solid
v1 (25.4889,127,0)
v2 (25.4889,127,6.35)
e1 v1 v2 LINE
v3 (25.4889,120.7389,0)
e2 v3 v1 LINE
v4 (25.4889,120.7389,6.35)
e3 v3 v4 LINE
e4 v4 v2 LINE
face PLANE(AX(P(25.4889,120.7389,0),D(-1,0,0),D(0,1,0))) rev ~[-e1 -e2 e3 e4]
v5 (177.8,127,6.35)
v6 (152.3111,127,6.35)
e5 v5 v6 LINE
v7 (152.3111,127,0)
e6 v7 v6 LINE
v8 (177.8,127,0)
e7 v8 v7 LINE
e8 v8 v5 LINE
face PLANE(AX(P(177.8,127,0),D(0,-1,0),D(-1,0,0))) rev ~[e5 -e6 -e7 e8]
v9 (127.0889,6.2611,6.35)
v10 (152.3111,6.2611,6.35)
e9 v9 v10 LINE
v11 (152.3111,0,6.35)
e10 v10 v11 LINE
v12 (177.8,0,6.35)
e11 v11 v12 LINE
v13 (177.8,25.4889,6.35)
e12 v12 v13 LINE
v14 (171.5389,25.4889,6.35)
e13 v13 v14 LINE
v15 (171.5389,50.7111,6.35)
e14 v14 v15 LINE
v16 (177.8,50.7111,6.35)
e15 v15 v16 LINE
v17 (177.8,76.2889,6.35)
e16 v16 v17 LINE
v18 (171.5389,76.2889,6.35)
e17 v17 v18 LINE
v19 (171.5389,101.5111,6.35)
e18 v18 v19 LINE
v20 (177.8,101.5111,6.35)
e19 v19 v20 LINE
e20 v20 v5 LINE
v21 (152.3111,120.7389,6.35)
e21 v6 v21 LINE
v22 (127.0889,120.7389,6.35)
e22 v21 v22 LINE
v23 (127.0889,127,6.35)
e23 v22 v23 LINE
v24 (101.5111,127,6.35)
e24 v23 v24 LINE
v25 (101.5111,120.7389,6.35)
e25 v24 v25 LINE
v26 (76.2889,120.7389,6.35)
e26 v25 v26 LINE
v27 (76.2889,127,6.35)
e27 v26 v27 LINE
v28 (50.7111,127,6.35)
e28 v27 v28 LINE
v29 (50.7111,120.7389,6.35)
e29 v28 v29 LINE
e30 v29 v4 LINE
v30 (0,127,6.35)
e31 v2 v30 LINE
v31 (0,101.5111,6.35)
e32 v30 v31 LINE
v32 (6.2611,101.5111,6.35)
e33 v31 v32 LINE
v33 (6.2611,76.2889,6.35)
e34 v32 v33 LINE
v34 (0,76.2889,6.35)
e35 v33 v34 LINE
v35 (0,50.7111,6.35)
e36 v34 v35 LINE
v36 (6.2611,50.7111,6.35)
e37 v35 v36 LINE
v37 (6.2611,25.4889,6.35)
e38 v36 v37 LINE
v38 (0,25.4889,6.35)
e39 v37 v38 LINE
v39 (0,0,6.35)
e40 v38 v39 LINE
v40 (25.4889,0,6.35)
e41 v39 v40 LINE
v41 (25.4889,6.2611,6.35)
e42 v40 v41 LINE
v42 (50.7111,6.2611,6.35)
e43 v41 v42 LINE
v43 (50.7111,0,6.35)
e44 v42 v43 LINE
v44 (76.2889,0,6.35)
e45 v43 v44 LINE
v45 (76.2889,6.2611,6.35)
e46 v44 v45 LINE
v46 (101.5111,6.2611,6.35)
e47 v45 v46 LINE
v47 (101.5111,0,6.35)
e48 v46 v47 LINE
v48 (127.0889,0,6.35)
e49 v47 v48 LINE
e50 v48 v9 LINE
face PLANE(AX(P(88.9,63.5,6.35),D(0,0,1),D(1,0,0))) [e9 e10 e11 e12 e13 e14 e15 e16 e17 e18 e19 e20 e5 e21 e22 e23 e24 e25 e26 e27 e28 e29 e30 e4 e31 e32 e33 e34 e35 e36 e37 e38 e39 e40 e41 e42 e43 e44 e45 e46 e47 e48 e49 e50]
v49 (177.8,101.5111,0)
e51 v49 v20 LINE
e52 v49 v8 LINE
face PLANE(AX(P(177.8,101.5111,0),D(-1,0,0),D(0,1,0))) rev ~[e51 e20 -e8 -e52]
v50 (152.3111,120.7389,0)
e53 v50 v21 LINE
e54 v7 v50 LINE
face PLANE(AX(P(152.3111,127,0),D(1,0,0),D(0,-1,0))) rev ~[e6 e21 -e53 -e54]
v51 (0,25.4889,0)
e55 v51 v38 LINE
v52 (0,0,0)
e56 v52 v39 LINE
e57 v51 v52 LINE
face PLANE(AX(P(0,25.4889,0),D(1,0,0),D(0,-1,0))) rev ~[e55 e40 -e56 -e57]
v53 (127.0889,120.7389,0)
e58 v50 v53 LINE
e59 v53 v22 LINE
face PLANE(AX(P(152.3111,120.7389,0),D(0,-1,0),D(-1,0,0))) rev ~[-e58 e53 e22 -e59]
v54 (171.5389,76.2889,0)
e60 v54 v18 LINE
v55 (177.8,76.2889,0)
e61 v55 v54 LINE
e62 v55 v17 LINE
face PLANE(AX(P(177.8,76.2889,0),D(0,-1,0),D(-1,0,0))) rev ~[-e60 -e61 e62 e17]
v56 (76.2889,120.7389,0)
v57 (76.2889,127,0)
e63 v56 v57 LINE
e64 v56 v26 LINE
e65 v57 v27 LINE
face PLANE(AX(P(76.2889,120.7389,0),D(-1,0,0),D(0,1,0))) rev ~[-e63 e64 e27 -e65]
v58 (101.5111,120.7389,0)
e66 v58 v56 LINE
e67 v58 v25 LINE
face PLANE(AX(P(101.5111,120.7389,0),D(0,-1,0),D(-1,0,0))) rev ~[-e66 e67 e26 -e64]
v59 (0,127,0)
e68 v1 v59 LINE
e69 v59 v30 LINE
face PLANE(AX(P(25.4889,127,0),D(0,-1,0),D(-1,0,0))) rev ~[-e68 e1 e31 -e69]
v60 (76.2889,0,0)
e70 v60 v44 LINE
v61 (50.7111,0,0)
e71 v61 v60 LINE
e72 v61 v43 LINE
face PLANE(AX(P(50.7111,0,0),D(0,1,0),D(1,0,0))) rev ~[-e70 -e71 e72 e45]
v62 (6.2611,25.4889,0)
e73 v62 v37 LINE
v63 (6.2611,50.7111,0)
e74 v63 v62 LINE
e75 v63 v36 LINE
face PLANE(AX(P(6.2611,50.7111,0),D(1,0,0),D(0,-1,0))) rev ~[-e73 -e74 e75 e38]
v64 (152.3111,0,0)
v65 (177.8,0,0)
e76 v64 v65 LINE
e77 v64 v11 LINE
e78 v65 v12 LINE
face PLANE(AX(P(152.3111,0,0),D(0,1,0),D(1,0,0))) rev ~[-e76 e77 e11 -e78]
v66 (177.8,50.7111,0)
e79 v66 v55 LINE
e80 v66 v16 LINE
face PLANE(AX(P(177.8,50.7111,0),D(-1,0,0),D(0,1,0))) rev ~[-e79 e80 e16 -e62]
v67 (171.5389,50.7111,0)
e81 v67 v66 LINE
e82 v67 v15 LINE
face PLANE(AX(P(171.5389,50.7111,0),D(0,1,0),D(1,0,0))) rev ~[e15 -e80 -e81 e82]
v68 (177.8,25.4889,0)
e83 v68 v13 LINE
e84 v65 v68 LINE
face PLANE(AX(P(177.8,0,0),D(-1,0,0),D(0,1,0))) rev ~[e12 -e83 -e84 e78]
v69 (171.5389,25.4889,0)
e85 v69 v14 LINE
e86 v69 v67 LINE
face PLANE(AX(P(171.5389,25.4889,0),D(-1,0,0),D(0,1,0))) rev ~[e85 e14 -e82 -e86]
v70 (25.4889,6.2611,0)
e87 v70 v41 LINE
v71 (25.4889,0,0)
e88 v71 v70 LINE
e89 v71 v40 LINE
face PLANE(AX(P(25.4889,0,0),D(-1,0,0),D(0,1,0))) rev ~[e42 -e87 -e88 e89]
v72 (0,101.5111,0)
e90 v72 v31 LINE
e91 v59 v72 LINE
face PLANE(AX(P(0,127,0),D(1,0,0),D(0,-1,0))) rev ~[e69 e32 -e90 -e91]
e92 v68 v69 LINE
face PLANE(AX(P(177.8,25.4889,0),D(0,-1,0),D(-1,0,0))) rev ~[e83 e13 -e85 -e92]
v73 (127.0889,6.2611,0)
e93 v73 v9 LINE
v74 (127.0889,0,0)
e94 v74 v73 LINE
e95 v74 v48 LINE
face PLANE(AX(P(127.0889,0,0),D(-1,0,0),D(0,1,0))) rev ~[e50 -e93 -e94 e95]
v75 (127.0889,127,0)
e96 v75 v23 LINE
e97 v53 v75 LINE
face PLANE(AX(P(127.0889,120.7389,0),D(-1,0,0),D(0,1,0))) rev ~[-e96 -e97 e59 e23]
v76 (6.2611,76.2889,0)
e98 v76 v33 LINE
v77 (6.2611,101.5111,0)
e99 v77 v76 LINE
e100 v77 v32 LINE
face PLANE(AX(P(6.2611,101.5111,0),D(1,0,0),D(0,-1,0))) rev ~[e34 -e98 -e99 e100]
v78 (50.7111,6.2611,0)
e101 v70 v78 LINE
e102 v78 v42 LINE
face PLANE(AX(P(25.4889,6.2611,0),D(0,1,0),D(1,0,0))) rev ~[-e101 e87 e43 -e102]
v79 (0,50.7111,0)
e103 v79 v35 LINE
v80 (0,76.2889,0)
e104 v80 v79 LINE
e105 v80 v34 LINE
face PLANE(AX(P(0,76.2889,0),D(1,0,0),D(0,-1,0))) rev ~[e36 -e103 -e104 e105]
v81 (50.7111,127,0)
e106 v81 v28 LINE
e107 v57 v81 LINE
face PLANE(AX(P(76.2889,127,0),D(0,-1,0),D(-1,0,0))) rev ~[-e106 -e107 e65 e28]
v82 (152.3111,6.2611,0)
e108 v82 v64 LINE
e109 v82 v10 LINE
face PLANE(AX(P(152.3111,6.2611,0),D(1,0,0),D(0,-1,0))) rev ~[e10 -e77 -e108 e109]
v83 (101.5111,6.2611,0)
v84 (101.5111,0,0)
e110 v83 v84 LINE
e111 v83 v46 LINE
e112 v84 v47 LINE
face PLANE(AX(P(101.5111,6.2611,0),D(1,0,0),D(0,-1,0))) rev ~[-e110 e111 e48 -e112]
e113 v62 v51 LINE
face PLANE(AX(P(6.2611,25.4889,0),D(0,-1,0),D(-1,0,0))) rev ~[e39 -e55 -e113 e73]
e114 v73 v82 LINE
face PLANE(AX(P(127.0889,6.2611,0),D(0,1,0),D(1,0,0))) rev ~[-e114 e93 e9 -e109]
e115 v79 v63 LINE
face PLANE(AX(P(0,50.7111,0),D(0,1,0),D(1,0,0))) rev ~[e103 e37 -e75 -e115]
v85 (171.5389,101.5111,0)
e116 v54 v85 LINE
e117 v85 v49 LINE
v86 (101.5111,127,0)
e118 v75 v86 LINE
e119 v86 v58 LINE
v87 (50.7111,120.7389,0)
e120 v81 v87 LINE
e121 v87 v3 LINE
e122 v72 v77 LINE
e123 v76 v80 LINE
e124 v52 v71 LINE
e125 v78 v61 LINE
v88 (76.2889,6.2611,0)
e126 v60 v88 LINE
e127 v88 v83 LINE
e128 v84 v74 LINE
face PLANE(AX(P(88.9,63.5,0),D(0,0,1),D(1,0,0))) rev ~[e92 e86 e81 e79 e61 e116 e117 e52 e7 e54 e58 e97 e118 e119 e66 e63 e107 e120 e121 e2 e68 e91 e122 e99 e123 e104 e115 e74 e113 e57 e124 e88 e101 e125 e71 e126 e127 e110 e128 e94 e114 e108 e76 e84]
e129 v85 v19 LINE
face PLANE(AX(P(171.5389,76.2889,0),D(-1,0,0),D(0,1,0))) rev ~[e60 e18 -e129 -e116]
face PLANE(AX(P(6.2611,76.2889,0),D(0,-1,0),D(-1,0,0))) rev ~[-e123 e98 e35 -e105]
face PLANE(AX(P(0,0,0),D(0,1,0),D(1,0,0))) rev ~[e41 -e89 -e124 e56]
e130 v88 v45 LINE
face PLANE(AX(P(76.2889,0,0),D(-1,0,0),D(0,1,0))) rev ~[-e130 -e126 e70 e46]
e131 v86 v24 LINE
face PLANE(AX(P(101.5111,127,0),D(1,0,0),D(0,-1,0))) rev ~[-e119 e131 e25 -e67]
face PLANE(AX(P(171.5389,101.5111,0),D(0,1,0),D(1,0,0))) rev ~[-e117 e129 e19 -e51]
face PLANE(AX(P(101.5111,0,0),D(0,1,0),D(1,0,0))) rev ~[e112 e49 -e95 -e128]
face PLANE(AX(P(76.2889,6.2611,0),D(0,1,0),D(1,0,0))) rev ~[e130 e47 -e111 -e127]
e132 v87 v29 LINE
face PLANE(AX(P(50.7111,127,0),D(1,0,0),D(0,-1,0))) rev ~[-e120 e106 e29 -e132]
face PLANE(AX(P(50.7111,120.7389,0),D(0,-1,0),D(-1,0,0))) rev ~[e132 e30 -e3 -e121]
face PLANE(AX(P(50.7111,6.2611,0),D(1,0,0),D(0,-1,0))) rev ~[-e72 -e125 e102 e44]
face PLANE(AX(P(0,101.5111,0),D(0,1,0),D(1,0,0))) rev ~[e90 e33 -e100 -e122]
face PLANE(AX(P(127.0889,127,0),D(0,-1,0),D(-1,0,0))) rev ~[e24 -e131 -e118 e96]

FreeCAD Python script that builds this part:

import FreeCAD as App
import Part
import Sketcher
Q = App.Units.Quantity


def add_polygon(sketch, points):
    """Adds a closed chain of lines whose ends are joined by coincident constraints."""
    first, n = sketch.GeometryCount, len(points)
    for a, b in zip(points, points[1:] + points[:1]):
        sketch.addGeometry(Part.LineSegment(App.Vector(*a, 0), App.Vector(*b, 0)), False)
    for i in range(n):
        sketch.addConstraint(Sketcher.Constraint("Coincident", first + i, 2, first + (i + 1) % n, 1))

doc = App.newDocument("Part")
params = doc.addObject("Spreadsheet::Sheet", "Params")
for row, (alias, value) in enumerate([
    ("sketch1_width", "0.993 in"),
    ("pad1_length", "0.25 in"),
], start=1):
    params.set(f"A{row}", alias)
    params.set(f"B{row}", "=" + value)
    params.setAlias(f"B{row}", alias)

body = doc.addObject("PartDesign::Body", "Body")

# Sketch on XY plane
sketch1 = doc.addObject("Sketcher::SketchObject", "Sketch")
body.addObject(sketch1)
sketch1.AttachmentSupport = (doc.XY_Plane, [""])
sketch1.MapMode = "FlatFace"
add_polygon(sketch1, [(0, 25), (0, 0), (25, 0), (25, 6), (51, 6), (51, 0), (76, 0), (76, 6), (102, 6), (102, 0), (127, 0), (127, 6), (152, 6), (152, 0), (178, 0), (178, 25), (172, 25), (172, 51), (178, 51), (178, 76), (172, 76), (172, 102), (178, 102), (178, 127), (152, 127), (152, 121), (127, 121), (127, 127), (102, 127), (102, 121), (76, 121), (76, 127), (51, 127), (51, 121), (25, 121), (25, 127), (0, 127), (0, 102), (6, 102), (6, 76), (0, 76), (0, 51), (6, 51), (6, 25)])  # lines 0-43
sketch1.addConstraint([
    Sketcher.Constraint("Vertical", 0),
    Sketcher.Constraint("Horizontal", 1),
    Sketcher.Constraint("Vertical", 2),
    Sketcher.Constraint("Horizontal", 3),
    Sketcher.Constraint("Vertical", 4),
    Sketcher.Constraint("Horizontal", 5),
    Sketcher.Constraint("Vertical", 6),
    Sketcher.Constraint("Horizontal", 7),
    Sketcher.Constraint("Vertical", 8),
    Sketcher.Constraint("Horizontal", 9),
    Sketcher.Constraint("Vertical", 10),
    Sketcher.Constraint("Horizontal", 11),
    Sketcher.Constraint("Vertical", 12),
    Sketcher.Constraint("Horizontal", 13),
    Sketcher.Constraint("Vertical", 14),
    Sketcher.Constraint("Horizontal", 15),
    Sketcher.Constraint("Vertical", 16),
    Sketcher.Constraint("Horizontal", 17),
    Sketcher.Constraint("Vertical", 18),
    Sketcher.Constraint("Horizontal", 19),
    Sketcher.Constraint("Vertical", 20),
    Sketcher.Constraint("Horizontal", 21),
    Sketcher.Constraint("Vertical", 22),
    Sketcher.Constraint("Horizontal", 23),
    Sketcher.Constraint("Vertical", 24),
    Sketcher.Constraint("Horizontal", 25),
    Sketcher.Constraint("Vertical", 26),
    Sketcher.Constraint("Horizontal", 27),
    Sketcher.Constraint("Vertical", 28),
    Sketcher.Constraint("Horizontal", 29),
    Sketcher.Constraint("Vertical", 30),
    Sketcher.Constraint("Horizontal", 31),
    Sketcher.Constraint("Vertical", 32),
    Sketcher.Constraint("Horizontal", 33),
    Sketcher.Constraint("Vertical", 34),
    Sketcher.Constraint("Horizontal", 35),
    Sketcher.Constraint("Vertical", 36),
    Sketcher.Constraint("Horizontal", 37),
    Sketcher.Constraint("Vertical", 38),
    Sketcher.Constraint("Horizontal", 39),
    Sketcher.Constraint("Vertical", 40),
    Sketcher.Constraint("Horizontal", 41),
    Sketcher.Constraint("Vertical", 42),
    Sketcher.Constraint("Horizontal", 43),
    Sketcher.Constraint("Coincident", 0, 2, -1, 1),
    Sketcher.Constraint("PointOnObject", 4, 2, -1),
    Sketcher.Constraint("PointOnObject", 8, 2, -1),
    Sketcher.Constraint("PointOnObject", 12, 2, -1),
    Sketcher.Constraint("PointOnObject", 35, 2, -2),
    Sketcher.Constraint("PointOnObject", 39, 2, -2),
    Sketcher.Constraint("Horizontal", 3, 2, 6, 2),
    Sketcher.Constraint("Horizontal", 7, 2, 10, 2),
    Sketcher.Constraint("Horizontal", 23, 2, 26, 2),
    Sketcher.Constraint("Horizontal", 25, 2, 28, 2),
    Sketcher.Constraint("Horizontal", 27, 2, 30, 2),
    Sketcher.Constraint("Horizontal", 29, 2, 32, 2),
    Sketcher.Constraint("Horizontal", 31, 2, 34, 2),
    Sketcher.Constraint("Horizontal", 21, 2, 36, 2),
    Sketcher.Constraint("Horizontal", 19, 2, 38, 2),
    Sketcher.Constraint("Horizontal", 17, 2, 40, 2),
    Sketcher.Constraint("Horizontal", 15, 2, 42, 2),
    Sketcher.Constraint("Vertical", 14, 2, 17, 2),
    Sketcher.Constraint("Vertical", 16, 2, 19, 2),
    Sketcher.Constraint("Vertical", 18, 2, 21, 2),
    Sketcher.Constraint("Vertical", 12, 2, 23, 2),
    Sketcher.Constraint("Vertical", 10, 2, 25, 2),
    Sketcher.Constraint("Vertical", 8, 2, 27, 2),
    Sketcher.Constraint("Vertical", 6, 2, 29, 2),
    Sketcher.Constraint("Vertical", 4, 2, 31, 2),
    Sketcher.Constraint("Vertical", 2, 2, 33, 2),
    Sketcher.Constraint("Vertical", 38, 2, 41, 2),
    Sketcher.Constraint("Equal", 3, 7),
    Sketcher.Constraint("Equal", 5, 9),
    Sketcher.Constraint("Equal", 7, 11),
    Sketcher.Constraint("Equal", 1, 13),
    Sketcher.Constraint("Equal", 21, 37),
    Sketcher.Constraint("Equal", 35, 0),
    Sketcher.Constraint("Equal", 43, 2),
    Sketcher.Constraint("Equal", 33, 16),
    Sketcher.Constraint("Equal", 31, 18),
    Sketcher.Constraint("Equal", 16, 20),
    Sketcher.Constraint("Equal", 14, 22),
    Sketcher.Constraint("Equal", 12, 24),
    Sketcher.Constraint("DistanceX", -1, 1, 13, 2, Q("7 in")),
    Sketcher.Constraint("DistanceY", -1, 1, 22, 2, Q("5 in")),
    Sketcher.Constraint("DistanceX", 3, 1, 3, 2, Q("0.993 in")),
    Sketcher.Constraint("DistanceX", 10, 2, 15, 2, Q("1.75 in")),
])
sketch1.setExpression("Constraints[129]", "Params.sketch1_width")
pad1 = doc.addObject("PartDesign::Pad", "Pad")
body.addObject(pad1)
pad1.Profile = sketch1
pad1.setExpression("Length", "Params.pad1_length")

doc.recompute()
